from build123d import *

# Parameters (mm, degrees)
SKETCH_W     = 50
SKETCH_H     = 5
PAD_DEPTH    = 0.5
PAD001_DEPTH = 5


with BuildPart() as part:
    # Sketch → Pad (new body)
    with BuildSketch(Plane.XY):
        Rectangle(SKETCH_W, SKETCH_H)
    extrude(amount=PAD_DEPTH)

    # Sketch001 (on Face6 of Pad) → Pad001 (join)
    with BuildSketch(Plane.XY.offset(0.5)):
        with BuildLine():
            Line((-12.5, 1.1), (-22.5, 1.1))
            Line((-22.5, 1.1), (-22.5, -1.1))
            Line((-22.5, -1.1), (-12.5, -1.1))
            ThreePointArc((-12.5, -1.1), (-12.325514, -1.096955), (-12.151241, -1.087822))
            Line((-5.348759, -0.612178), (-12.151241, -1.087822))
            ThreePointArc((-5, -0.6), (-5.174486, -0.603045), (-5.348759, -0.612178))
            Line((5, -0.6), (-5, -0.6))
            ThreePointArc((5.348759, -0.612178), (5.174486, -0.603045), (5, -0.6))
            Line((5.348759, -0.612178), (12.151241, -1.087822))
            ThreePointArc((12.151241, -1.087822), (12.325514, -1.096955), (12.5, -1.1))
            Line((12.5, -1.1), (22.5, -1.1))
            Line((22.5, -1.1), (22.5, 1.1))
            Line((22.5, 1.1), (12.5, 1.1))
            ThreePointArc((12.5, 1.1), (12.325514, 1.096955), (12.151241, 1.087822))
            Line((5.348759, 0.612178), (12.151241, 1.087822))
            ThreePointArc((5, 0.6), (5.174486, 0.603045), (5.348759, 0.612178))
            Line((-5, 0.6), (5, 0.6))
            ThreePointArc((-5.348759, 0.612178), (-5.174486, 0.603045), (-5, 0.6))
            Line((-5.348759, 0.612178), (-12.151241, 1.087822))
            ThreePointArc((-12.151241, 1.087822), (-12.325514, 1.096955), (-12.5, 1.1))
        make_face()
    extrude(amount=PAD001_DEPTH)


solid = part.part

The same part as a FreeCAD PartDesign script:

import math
import FreeCAD as App
import Part
import Sketcher
from FreeCAD import Vector


def add_polygon(sketch, points):
    """Adds a closed chain of lines whose ends are joined by coincident constraints."""
    first, n = sketch.GeometryCount, len(points)
    for a, b in zip(points, points[1:] + points[:1]):
        sketch.addGeometry(Part.LineSegment(App.Vector(*a, 0), App.Vector(*b, 0)), False)
    for i in range(n):
        sketch.addConstraint(Sketcher.Constraint("Coincident", first + i, 2, first + (i + 1) % n, 1))

doc = App.newDocument("Part")
body = doc.addObject("PartDesign::Body", "Body")

sketch1 = doc.addObject("Sketcher::SketchObject", "Sketch")
body.addObject(sketch1)
sketch1.AttachmentSupport = (doc.XY_Plane, [""])
sketch1.MapMode = "FlatFace"
add_polygon(sketch1, [(-25, 2), (-25, -2), (25, -2), (25, 2)])
sketch1.addConstraint([
    Sketcher.Constraint("Vertical", 0),
    Sketcher.Constraint("Horizontal", 1),
    Sketcher.Constraint("Vertical", 2),
    Sketcher.Constraint("Horizontal", 3),
    Sketcher.Constraint("Symmetric", 0, 2, 2, 2, -1, 1),
    Sketcher.Constraint("DistanceX", 1, 1, 1, 2, 50.0),
    Sketcher.Constraint("DistanceY", 0, 2, 0, 1, 5.0),
])
pad1 = doc.addObject("PartDesign::Pad", "Pad")
body.addObject(pad1)
pad1.Profile = sketch1
pad1.Length = 0.5

sketch2 = doc.addObject("Sketcher::SketchObject", "Sketch001")
body.addObject(sketch2)
sketch2.AttachmentSupport = (doc.XY_Plane, [""])
sketch2.MapMode = "FlatFace"
sketch2.AttachmentOffset = App.Placement(Vector(0, 0, 0.5), App.Rotation())
sketch2.addGeometry([
    Part.LineSegment(Vector(-12.5, 1.1, 0), Vector(-22.5, 1.1, 0)),
    Part.LineSegment(Vector(-22.5, 1.1, 0), Vector(-22.5, -1.1, 0)),
    Part.LineSegment(Vector(-22.5, -1.1, 0), Vector(-12.5, -1.1, 0)),
    Part.ArcOfCircle(Part.Circle(Vector(-12.5, 3.9, 0), Vector(0, 0, 1), 5), math.radians(-90), math.radians(-86)),
    Part.LineSegment(Vector(-12.15, -1.09, 0), Vector(-5.35, -0.61, 0)),
    Part.ArcOfCircle(Part.Circle(Vector(-5, -5.6, 0), Vector(0, 0, 1), 5), math.radians(90), math.radians(94)),
    Part.LineSegment(Vector(-5, -0.6, 0), Vector(5, -0.6, 0)),
    Part.ArcOfCircle(Part.Circle(Vector(5, -5.6, 0), Vector(0, 0, 1), 5), math.radians(86), math.radians(90)),
    Part.LineSegment(Vector(5.35, -0.61, 0), Vector(12.15, -1.09, 0)),
    Part.ArcOfCircle(Part.Circle(Vector(12.5, 3.9, 0), Vector(0, 0, 1), 5), math.radians(-94), math.radians(-90)),
    Part.LineSegment(Vector(12.5, -1.1, 0), Vector(22.5, -1.1, 0)),
    Part.LineSegment(Vector(22.5, -1.1, 0), Vector(22.5, 1.1, 0)),
    Part.LineSegment(Vector(22.5, 1.1, 0), Vector(12.5, 1.1, 0)),
    Part.ArcOfCircle(Part.Circle(Vector(12.5, -3.9, 0), Vector(0, 0, 1), 5), math.radians(90), math.radians(94)),
    Part.LineSegment(Vector(12.15, 1.09, 0), Vector(5.35, 0.61, 0)),
    Part.ArcOfCircle(Part.Circle(Vector(5, 5.6, 0), Vector(0, 0, 1), 5), math.radians(-90), math.radians(-86)),
    Part.LineSegment(Vector(5, 0.6, 0), Vector(-5, 0.6, 0)),
    Part.ArcOfCircle(Part.Circle(Vector(-5, 5.6, 0), Vector(0, 0, 1), 5), math.radians(-94), math.radians(-90)),
    Part.LineSegment(Vector(-5.35, 0.61, 0), Vector(-12.15, 1.09, 0)),
    Part.ArcOfCircle(Part.Circle(Vector(-12.5, -3.9, 0), Vector(0, 0, 1), 5), math.radians(86), math.radians(90)),
], False)
sketch2.addConstraint([
    Sketcher.Constraint("Coincident", 0, 2, 1, 1),
    Sketcher.Constraint("Coincident", 1, 2, 2, 1),
    Sketcher.Constraint("Coincident", 2, 2, 3, 1),
    Sketcher.Constraint("Coincident", 3, 2, 4, 1),
    Sketcher.Constraint("Coincident", 4, 2, 5, 2),
    Sketcher.Constraint("Coincident", 5, 1, 6, 1),
    Sketcher.Constraint("Coincident", 6, 2, 7, 2),
    Sketcher.Constraint("Coincident", 7, 1, 8, 1),
    Sketcher.Constraint("Coincident", 8, 2, 9, 1),
    Sketcher.Constraint("Coincident", 9, 2, 10, 1),
    Sketcher.Constraint("Coincident", 10, 2, 11, 1),
    Sketcher.Constraint("Coincident", 11, 2, 12, 1),
    Sketcher.Constraint("Coincident", 12, 2, 13, 1),
    Sketcher.Constraint("Coincident", 13, 2, 14, 1),
    Sketcher.Constraint("Coincident", 14, 2, 15, 2),
    Sketcher.Constraint("Coincident", 15, 1, 16, 1),
    Sketcher.Constraint("Coincident", 16, 2, 17, 2),
    Sketcher.Constraint("Coincident", 17, 1, 18, 1),
    Sketcher.Constraint("Coincident", 18, 2, 19, 1),
    Sketcher.Constraint("Coincident", 19, 2, 0, 1),
    Sketcher.Constraint("Horizontal", 0),
    Sketcher.Constraint("Vertical", 1),
    Sketcher.Constraint("Horizontal", 2),
    Sketcher.Constraint("Horizontal", 6),
    Sketcher.Constraint("Horizontal", 10),
    Sketcher.Constraint("Vertical", 11),
    Sketcher.Constraint("Horizontal", 12),
    Sketcher.Constraint("Horizontal", 16),
    Sketcher.Constraint("Equal", 3, 5),
    Sketcher.Constraint("Equal", 5, 7),
    Sketcher.Constraint("Equal", 7, 9),
    Sketcher.Constraint("Equal", 9, 13),
    Sketcher.Constraint("Equal", 13, 15),
    Sketcher.Constraint("Equal", 15, 17),
    Sketcher.Constraint("Equal", 17, 19),
    Sketcher.Constraint("Symmetric", 3, 3, 13, 3, -1, 1),
    Sketcher.Constraint("Symmetric", 5, 3, 15, 3, -1, 1),
    Sketcher.Constraint("Symmetric", 9, 3, 19, 3, -1, 1),
    Sketcher.Constraint("Symmetric", 7, 1, 17, 1, -1, 1),
    Sketcher.Constraint("Symmetric", 3, 3, 9, 3, -2),
    Sketcher.Constraint("Symmetric", 4, 2, 7, 1, -2),
    Sketcher.Constraint("Horizontal", 3, 2, 8, 2),
    Sketcher.Constraint("Horizontal", 14, 2, 17, 1),
    Sketcher.Constraint("Horizontal", 13, 2, 18, 2),
    Sketcher.Constraint("Vertical", 9, 2, 12, 2),
    Sketcher.Constraint("Vertical", 8, 2, 13, 2),
    Sketcher.Constraint("Vertical", 6, 2, 15, 1),
    Sketcher.Constraint("Vertical", 5, 1, 16, 2),
    Sketcher.Constraint("Vertical", 2, 2, 19, 2),
    Sketcher.Constraint("Equal", 2, 6),
    Sketcher.Constraint("Equal", 6, 10),
    Sketcher.Constraint("DistanceX", 0, 2, 0, 1, 10.0),
    Sketcher.Constraint("DistanceY", 1, 2, 1, 1, 2.2),
    Sketcher.Constraint("DistanceX", 5, 1, -1, 1, 5.0),
    Sketcher.Constraint("DistanceX", 0, 2, -1, 1, 22.5),
    Sketcher.Constraint("DistanceY", 5, 1, -1, 1, 0.6),
    Sketcher.Constraint("DistanceX", -1, 1, 9, 2, 12.5),
    Sketcher.Constraint("DistanceX", 3, 3, 7, 3, 17.5),
    Sketcher.Constraint("Radius", 3, 4.999333),
    Sketcher.Constraint("Distance", 4, 6.819091),
    Sketcher.Constraint("DistanceX", 3, 2, -1, 1, 12.151241),
    Sketcher.Constraint("DistanceY", 3, 2, -1, 1, 1.087822),
])
pad2 = doc.addObject("PartDesign::Pad", "Pad001")
body.addObject(pad2)
pad2.Profile = sketch2
pad2.Length = 5

doc.recompute()
